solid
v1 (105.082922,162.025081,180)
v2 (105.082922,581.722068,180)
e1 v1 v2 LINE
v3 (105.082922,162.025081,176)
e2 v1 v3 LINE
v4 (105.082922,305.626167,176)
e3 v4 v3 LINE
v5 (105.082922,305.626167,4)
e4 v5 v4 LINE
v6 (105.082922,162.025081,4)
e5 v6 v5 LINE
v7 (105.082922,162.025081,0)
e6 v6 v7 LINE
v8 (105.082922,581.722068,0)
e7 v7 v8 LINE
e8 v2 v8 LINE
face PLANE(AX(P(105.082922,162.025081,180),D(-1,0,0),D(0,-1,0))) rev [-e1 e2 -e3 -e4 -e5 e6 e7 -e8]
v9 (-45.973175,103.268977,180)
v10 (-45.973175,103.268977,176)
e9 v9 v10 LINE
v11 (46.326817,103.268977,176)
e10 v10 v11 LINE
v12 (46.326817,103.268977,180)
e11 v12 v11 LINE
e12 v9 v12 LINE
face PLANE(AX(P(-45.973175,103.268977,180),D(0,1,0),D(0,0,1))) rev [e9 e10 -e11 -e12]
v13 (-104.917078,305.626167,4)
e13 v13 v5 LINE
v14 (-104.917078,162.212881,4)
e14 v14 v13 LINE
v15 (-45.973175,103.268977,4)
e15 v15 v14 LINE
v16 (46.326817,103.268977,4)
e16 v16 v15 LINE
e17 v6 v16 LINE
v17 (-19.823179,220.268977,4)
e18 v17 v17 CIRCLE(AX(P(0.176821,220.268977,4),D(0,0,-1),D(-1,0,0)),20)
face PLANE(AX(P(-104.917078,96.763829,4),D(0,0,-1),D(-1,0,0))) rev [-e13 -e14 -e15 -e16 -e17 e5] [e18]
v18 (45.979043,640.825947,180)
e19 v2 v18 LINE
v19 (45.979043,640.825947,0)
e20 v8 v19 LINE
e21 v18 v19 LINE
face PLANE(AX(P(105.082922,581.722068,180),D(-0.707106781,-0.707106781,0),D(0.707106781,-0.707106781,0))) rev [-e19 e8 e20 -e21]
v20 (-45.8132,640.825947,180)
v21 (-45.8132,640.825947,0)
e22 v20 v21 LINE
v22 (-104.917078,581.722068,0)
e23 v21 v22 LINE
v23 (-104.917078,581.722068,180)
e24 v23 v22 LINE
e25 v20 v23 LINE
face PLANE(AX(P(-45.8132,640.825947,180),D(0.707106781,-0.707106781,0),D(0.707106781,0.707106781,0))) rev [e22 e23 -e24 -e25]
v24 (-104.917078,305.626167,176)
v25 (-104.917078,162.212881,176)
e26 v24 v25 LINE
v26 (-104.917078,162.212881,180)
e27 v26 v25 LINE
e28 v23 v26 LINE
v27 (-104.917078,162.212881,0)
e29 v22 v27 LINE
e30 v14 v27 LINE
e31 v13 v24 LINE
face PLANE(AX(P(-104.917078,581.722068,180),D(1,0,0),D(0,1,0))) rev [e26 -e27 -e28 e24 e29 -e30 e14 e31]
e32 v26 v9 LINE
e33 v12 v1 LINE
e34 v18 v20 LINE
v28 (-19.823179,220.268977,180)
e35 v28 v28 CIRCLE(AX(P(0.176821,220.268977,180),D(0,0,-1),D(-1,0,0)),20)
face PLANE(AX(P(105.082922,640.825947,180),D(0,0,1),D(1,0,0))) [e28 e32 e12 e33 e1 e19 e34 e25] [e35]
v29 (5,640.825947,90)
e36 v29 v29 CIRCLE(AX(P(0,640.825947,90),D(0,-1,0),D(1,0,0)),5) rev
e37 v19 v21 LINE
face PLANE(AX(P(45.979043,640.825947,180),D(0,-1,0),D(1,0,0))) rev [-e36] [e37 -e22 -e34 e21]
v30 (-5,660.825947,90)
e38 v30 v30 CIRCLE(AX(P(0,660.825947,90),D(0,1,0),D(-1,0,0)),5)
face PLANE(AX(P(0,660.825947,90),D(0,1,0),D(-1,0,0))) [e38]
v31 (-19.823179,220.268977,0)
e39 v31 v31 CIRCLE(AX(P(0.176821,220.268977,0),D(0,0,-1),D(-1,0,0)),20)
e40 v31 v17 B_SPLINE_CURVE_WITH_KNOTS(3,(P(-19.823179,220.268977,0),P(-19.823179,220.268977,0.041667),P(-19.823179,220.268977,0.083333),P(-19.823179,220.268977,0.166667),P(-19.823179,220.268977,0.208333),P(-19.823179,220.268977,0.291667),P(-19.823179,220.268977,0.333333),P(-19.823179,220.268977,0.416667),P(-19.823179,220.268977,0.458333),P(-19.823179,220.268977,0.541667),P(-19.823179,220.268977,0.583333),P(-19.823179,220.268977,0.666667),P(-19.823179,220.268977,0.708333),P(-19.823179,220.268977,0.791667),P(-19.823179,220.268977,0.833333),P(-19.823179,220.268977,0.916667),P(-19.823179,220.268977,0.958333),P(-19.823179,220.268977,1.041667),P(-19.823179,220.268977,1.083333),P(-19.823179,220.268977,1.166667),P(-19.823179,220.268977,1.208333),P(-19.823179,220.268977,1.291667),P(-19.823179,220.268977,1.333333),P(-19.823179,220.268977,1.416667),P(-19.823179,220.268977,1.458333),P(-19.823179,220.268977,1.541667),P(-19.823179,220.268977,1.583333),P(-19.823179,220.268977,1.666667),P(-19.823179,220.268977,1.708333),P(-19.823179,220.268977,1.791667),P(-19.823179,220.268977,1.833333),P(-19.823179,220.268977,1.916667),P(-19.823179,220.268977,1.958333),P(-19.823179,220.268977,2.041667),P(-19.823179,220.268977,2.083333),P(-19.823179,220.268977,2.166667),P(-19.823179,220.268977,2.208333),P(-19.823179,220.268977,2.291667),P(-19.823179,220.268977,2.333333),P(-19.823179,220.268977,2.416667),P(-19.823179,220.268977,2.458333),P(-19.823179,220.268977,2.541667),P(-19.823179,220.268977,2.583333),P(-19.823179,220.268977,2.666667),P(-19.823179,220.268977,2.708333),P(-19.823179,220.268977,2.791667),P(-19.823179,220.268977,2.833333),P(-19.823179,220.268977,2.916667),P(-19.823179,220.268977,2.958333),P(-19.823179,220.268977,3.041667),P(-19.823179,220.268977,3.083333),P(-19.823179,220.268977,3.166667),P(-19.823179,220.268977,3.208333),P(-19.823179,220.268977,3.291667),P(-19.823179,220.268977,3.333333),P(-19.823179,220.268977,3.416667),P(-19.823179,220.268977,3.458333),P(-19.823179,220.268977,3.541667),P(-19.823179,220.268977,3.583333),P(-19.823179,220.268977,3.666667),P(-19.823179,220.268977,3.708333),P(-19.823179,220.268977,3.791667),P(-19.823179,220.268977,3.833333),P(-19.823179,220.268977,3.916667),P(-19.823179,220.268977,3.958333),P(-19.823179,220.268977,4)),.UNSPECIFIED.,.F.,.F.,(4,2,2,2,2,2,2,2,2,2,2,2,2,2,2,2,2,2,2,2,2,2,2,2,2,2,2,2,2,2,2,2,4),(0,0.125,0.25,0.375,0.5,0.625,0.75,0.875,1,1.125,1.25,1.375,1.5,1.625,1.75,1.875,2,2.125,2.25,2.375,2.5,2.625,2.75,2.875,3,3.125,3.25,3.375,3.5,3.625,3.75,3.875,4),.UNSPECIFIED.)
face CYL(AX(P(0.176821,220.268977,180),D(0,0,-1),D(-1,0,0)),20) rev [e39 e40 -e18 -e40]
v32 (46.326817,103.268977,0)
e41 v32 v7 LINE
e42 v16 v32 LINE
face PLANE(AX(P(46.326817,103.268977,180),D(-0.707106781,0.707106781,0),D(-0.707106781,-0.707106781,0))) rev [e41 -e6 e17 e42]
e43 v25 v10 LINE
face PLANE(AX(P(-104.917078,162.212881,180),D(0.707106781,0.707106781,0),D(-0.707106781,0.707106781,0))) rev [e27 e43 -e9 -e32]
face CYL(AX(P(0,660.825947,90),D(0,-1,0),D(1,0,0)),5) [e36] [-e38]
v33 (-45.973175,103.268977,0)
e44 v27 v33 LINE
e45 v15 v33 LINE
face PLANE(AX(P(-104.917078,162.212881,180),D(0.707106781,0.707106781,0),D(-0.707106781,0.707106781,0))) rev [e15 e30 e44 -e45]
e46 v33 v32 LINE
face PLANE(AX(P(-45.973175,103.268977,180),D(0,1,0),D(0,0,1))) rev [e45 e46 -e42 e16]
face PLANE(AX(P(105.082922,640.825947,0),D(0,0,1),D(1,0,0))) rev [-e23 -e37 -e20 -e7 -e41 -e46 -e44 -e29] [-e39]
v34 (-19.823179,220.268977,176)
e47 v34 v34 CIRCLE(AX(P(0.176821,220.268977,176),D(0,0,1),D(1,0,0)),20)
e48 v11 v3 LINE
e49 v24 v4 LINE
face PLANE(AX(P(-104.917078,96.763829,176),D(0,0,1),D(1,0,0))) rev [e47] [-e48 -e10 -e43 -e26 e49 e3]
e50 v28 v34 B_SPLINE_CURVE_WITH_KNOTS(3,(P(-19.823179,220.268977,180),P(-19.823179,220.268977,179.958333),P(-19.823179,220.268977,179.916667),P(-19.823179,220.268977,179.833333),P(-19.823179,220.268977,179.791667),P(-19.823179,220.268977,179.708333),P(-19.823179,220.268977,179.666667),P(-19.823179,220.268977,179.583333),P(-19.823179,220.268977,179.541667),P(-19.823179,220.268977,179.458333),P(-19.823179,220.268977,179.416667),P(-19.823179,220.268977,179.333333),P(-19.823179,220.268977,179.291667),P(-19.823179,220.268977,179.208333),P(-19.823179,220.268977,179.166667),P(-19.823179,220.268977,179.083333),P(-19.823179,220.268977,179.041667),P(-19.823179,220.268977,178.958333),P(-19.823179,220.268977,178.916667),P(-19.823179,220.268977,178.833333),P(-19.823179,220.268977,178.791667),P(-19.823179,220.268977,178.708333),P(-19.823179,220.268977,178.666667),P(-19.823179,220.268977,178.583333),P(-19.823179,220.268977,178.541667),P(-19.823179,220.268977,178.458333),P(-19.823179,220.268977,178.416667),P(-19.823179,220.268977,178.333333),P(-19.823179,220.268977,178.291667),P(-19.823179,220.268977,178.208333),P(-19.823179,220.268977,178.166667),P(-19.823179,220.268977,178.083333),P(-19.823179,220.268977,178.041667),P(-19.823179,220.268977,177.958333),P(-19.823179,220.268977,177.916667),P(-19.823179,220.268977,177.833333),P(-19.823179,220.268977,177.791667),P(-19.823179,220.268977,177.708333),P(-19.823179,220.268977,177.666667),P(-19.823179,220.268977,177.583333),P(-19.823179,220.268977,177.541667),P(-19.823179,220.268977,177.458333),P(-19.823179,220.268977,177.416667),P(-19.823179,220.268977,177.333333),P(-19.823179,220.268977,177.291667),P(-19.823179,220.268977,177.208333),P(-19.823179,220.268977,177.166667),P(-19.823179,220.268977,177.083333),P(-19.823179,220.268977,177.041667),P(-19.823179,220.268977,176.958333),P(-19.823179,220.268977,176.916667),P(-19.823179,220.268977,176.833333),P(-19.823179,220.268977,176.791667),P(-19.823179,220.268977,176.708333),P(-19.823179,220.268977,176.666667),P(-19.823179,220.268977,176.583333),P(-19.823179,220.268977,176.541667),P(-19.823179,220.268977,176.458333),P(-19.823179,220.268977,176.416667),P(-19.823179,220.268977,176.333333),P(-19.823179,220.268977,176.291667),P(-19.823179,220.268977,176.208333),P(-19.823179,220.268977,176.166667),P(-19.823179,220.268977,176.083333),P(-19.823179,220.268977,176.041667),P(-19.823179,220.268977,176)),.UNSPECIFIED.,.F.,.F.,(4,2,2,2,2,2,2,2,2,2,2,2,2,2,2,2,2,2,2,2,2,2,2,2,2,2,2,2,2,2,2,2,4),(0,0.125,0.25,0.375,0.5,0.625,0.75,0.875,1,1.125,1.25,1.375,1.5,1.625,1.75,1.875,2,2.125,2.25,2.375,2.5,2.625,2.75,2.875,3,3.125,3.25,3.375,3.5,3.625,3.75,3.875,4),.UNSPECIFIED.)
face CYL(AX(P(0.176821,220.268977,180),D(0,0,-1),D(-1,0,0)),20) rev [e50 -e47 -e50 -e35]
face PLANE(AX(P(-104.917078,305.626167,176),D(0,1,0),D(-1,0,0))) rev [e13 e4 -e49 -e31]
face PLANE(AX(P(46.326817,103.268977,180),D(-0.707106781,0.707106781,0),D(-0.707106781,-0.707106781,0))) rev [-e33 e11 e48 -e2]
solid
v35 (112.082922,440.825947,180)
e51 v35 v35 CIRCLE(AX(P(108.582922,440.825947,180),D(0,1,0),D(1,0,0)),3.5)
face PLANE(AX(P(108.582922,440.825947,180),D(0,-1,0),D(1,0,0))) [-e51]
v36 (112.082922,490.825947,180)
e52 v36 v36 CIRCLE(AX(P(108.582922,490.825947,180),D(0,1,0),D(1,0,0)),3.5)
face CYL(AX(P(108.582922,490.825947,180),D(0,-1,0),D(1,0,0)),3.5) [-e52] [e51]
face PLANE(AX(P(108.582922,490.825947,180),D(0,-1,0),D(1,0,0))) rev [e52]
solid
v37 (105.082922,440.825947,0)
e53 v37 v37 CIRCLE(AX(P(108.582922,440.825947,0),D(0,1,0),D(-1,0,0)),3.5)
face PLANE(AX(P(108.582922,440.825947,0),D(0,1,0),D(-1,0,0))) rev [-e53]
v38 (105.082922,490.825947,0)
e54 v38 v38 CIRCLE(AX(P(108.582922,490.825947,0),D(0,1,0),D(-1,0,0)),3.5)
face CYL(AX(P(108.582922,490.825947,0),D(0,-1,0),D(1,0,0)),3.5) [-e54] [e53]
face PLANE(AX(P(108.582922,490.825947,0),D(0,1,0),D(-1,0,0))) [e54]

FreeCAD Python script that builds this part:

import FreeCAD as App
import Part
import Sketcher

doc = App.newDocument("Part")
body = doc.addObject("PartDesign::Body", "Body")

sketch1 = body.newObject("Sketcher::SketchObject", "Sketch")
sketch1.AttachmentSupport = (doc.getObject("XY_Plane"), [""])
sketch1.MapMode = "FlatFace"
sketch1.addGeometry([
    Part.LineSegment(App.Vector(105, 582, 0), App.Vector(46, 641, 0)),
    Part.LineSegment(App.Vector(46, 641, 0), App.Vector(-46, 641, 0)),
    Part.LineSegment(App.Vector(-46, 641, 0), App.Vector(-105, 582, 0)),
    Part.LineSegment(App.Vector(-105, 582, 0), App.Vector(-105, 162, 0)),
    Part.LineSegment(App.Vector(-105, 162, 0), App.Vector(-46, 103, 0)),
    Part.LineSegment(App.Vector(-46, 103, 0), App.Vector(46, 103, 0)),
    Part.LineSegment(App.Vector(46, 103, 0), App.Vector(105, 162, 0)),
    Part.LineSegment(App.Vector(105, 162, 0), App.Vector(105, 582, 0)),
], False)
sketch1.addConstraint([
    Sketcher.Constraint("Coincident", 0, 2, 1, 1),
    Sketcher.Constraint("Coincident", 1, 2, 2, 1),
    Sketcher.Constraint("Coincident", 2, 2, 3, 1),
    Sketcher.Constraint("Coincident", 3, 2, 4, 1),
    Sketcher.Constraint("Coincident", 4, 2, 5, 1),
    Sketcher.Constraint("Coincident", 5, 2, 6, 1),
    Sketcher.Constraint("Coincident", 6, 2, 7, 1),
    Sketcher.Constraint("Coincident", 7, 2, 0, 1),
    Sketcher.Constraint("Horizontal", 1),
    Sketcher.Constraint("Vertical", 3),
    Sketcher.Constraint("Horizontal", 5),
    Sketcher.Constraint("Vertical", 7),
    Sketcher.Constraint("Perpendicular", 0, 2),
    Sketcher.Constraint("Perpendicular", 2, 4),
    Sketcher.Constraint("Perpendicular", 4, 6),
    Sketcher.Constraint("Horizontal", 2, 2, 7, 2),
    Sketcher.Constraint("Equal", 0, 2),
    Sketcher.Constraint("DistanceX", 3, 2, 6, 2, 210.0),
    Sketcher.Constraint("DistanceX", 5, 1, 5, 2, 92.299992),
    Sketcher.Constraint("DistanceX", 1, 2, -1, 1, 45.8132),
    Sketcher.Constraint("DistanceY", 6, 2, 3, 2, 0.1878),
    Sketcher.Constraint("DistanceX", 1, 2, 1, 1, 91.792242),
    Sketcher.Constraint("DistanceY", 3, 2, 3, 1, 419.509188),
    Sketcher.Constraint("DistanceY", -1, 1, 2, 2, 581.722068),
])
pad1 = body.newObject("PartDesign::Pad", "Pad")
pad1.Profile = sketch1
pad1.Length = 180

sketch2 = body.newObject("Sketcher::SketchObject", "Sketch001")
sketch2.AttachmentSupport = (doc.getObject("YZ_Plane"), [""])
sketch2.MapMode = "FlatFace"
sketch2.AttachmentOffset = App.Placement(App.Vector(0, 0, 105.082922), App.Rotation())
sketch2.addGeometry([
    Part.LineSegment(App.Vector(306, 176, 0), App.Vector(97, 176, 0)),
    Part.LineSegment(App.Vector(97, 176, 0), App.Vector(97, 4, 0)),
    Part.LineSegment(App.Vector(97, 4, 0), App.Vector(306, 4, 0)),
    Part.LineSegment(App.Vector(306, 4, 0), App.Vector(306, 176, 0)),
], False)
sketch2.addConstraint([
    Sketcher.Constraint("Coincident", 0, 2, 1, 1),
    Sketcher.Constraint("Coincident", 1, 2, 2, 1),
    Sketcher.Constraint("Coincident", 2, 2, 3, 1),
    Sketcher.Constraint("Coincident", 3, 2, 0, 1),
    Sketcher.Constraint("Horizontal", 0),
    Sketcher.Constraint("Vertical", 1),
    Sketcher.Constraint("Horizontal", 2),
    Sketcher.Constraint("Vertical", 3),
    Sketcher.Constraint("DistanceY", 1, 2, 1, 1, 172.0),
    Sketcher.Constraint("DistanceY", -1, 1, 0, 2, 176.0),
    Sketcher.Constraint("DistanceX", 0, 2, 0, 1, 208.862338),
    Sketcher.Constraint("DistanceX", -1, 1, 0, 2, 96.763829),
])
pocket1 = body.newObject("PartDesign::Pocket", "Pocket")
pocket1.Profile = sketch2
pocket1.Type = "ThroughAll"

sketch3 = body.newObject("Sketcher::SketchObject", "Sketch002")
sketch3.AttachmentSupport = (doc.getObject("XY_Plane"), [""])
sketch3.MapMode = "FlatFace"
sketch3.addGeometry(Part.Circle(App.Vector(0, 220, 0), App.Vector(0, 0, 1), 20), False)
sketch3.addConstraint([
    Sketcher.Constraint("Diameter", 0, 40.0),
    Sketcher.Constraint("DistanceX", -1, 1, 0, 3, 0.176821),
    Sketcher.Constraint("DistanceY", -1, 1, 0, 3, 220.268977),
])
pocket2 = body.newObject("PartDesign::Pocket", "Pocket001")
pocket2.Profile = sketch3
pocket2.Type = "ThroughAll"
pocket2.Reversed = True

sketch4 = body.newObject("Sketcher::SketchObject", "Sketch003")
sketch4.AttachmentSupport = (doc.getObject("XZ_Plane"), [""])
sketch4.MapMode = "FlatFace"
sketch4.AttachmentOffset = App.Placement(App.Vector(0, 0, -640.825947), App.Rotation())
sketch4.addGeometry(Part.Circle(App.Vector(0, 90, 0), App.Vector(0, 0, 1), 5), False)
sketch4.addConstraint([
    Sketcher.Constraint("PointOnObject", 0, 3, -2),
    Sketcher.Constraint("Diameter", 0, 10.0),
    Sketcher.Constraint("DistanceY", -1, 1, 0, 3, 90.0),
])
pad2 = body.newObject("PartDesign::Pad", "Pad001")
pad2.Profile = sketch4
pad2.Length = 20
pad2.Reversed = True
body2 = doc.addObject("PartDesign::Body", "Body001")

sketch5 = body2.newObject("Sketcher::SketchObject", "Sketch004")
sketch5.AttachmentSupport = (doc.getObject("XZ_Plane001"), [""])
sketch5.MapMode = "FlatFace"
sketch5.AttachmentOffset = App.Placement(App.Vector(0, 0, -440.825947), App.Rotation())
sketch5.addGeometry(Part.Circle(App.Vector(108.6, 0, 0), App.Vector(0, 0, 1), 3.5), False)
sketch5.addConstraint([
    Sketcher.Constraint("PointOnObject", 0, 3, -1),
    Sketcher.Constraint("Diameter", 0, 7.0),
    Sketcher.Constraint("DistanceX", -1, 1, 0, 3, 108.582922),
])
pad3 = body2.newObject("PartDesign::Pad", "Pad002")
pad3.Profile = sketch5
pad3.Length = 50
pad3.Reversed = True
body3 = doc.addObject("PartDesign::Body", "Body002")

sketch6 = body3.newObject("Sketcher::SketchObject", "Sketch005")
sketch6.AttachmentSupport = (doc.getObject("XZ_Plane002"), [""])
sketch6.MapMode = "FlatFace"
sketch6.AttachmentOffset = App.Placement(App.Vector(0, 0, -440.825947), App.Rotation())
sketch6.addGeometry(Part.Circle(App.Vector(108.6, 180, 0), App.Vector(0, 0, 1), 3.5), False)
sketch6.addConstraint([
    Sketcher.Constraint("Diameter", 0, 7.0),
    Sketcher.Constraint("DistanceY", -1, 1, 0, 3, 180.0),
    Sketcher.Constraint("DistanceX", -1, 1, 0, 3, 108.582922),
])
pad4 = body3.newObject("PartDesign::Pad", "Pad003")
pad4.Profile = sketch6
pad4.Length = 50
pad4.Reversed = True

doc.recompute()
